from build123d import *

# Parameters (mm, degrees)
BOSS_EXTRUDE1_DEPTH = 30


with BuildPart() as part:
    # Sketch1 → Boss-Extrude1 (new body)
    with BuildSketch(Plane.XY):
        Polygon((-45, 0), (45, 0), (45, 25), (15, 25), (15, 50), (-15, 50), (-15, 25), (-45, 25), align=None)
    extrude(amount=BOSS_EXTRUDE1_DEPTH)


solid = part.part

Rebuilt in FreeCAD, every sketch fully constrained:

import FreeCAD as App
import Part
import Sketcher

V = App.Vector
Q = App.Units.Quantity


def add_polygon(sketch, points):
    """Adds a closed chain of lines whose ends are joined by coincident constraints."""
    first, n = sketch.GeometryCount, len(points)
    for a, b in zip(points, points[1:] + points[:1]):
        sketch.addGeometry(Part.LineSegment(App.Vector(*a, 0), App.Vector(*b, 0)), False)
    for i in range(n):
        sketch.addConstraint(Sketcher.Constraint("Coincident", first + i, 2, first + (i + 1) % n, 1))

doc = App.newDocument("Part")
params = doc.addObject("Spreadsheet::Sheet", "Params")
for row, (alias, value) in enumerate([
    ("sketch1_width", "90 mm"),
    ("sketch1_height", "25 mm"),
    ("pad1_length", "30 mm"),
], start=1):
    params.set(f"A{row}", alias)
    params.set(f"B{row}", "=" + value)
    params.setAlias(f"B{row}", alias)

body = doc.addObject("PartDesign::Body", "Body")

# Sketch on XY plane
sketch1 = doc.addObject("Sketcher::SketchObject", "Sketch")
body.addObject(sketch1)
sketch1.AttachmentSupport = (doc.XY_Plane, [""])
sketch1.MapMode = "FlatFace"
add_polygon(sketch1, [(-45, 0), (45, 0), (45, 25), (15, 25), (15, 50), (-15, 50), (-15, 25), (-45, 25)])  # lines 0-7
sketch1.addConstraint([
    Sketcher.Constraint("Horizontal", 0),
    Sketcher.Constraint("Vertical", 1),
    Sketcher.Constraint("Horizontal", 2),
    Sketcher.Constraint("Vertical", 3),
    Sketcher.Constraint("Horizontal", 4),
    Sketcher.Constraint("Vertical", 5),
    Sketcher.Constraint("Horizontal", 6),
    Sketcher.Constraint("Vertical", 7),
    Sketcher.Constraint("Symmetric", 0, 2, 7, 2, -1, 1),
    Sketcher.Constraint("Symmetric", 2, 2, 5, 2, -2),
    Sketcher.Constraint("Equal", 2, 4),
    Sketcher.Constraint("Equal", 1, 3),
    Sketcher.Constraint("DistanceX", 0, 1, 0, 2, Q("90 mm")),
    Sketcher.Constraint("DistanceY", 1, 1, 1, 2, Q("25 mm")),
])
sketch1.setExpression("Constraints[20]", "Params.sketch1_width")
sketch1.setExpression("Constraints[21]", "Params.sketch1_height")
pad1 = doc.addObject("PartDesign::Pad", "Pad")
body.addObject(pad1)
pad1.Profile = sketch1
pad1.setExpression("Length", "Params.pad1_length")

doc.recompute()
